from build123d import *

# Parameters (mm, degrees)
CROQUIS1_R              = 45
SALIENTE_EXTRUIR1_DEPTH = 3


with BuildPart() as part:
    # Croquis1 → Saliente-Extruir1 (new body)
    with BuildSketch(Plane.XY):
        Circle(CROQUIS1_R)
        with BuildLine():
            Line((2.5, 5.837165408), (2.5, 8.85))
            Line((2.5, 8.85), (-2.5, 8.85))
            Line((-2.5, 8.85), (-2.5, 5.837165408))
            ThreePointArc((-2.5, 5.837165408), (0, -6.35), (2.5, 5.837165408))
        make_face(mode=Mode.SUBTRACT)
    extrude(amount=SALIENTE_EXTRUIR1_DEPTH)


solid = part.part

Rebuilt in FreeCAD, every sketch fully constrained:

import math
import FreeCAD as App
import Part
import Sketcher

V = App.Vector
Q = App.Units.Quantity

doc = App.newDocument("Part")
body = doc.addObject("PartDesign::Body", "Body")

# Sketch on XY plane
sketch1 = doc.addObject("Sketcher::SketchObject", "Sketch")
body.addObject(sketch1)
sketch1.AttachmentSupport = (doc.XY_Plane, [""])
sketch1.MapMode = "FlatFace"
sketch1.addGeometry([
    Part.Circle(V(0, 0, 0), V(0, 0, 1), 45),  # 0
    Part.LineSegment(V(2.5, 8.85, 0), V(2.5, 5.837165, 0)),  # 1
    Part.ArcOfCircle(Part.Circle(V(0, 0, 0), V(0, 0, 1), 6.35), math.radians(113.18497), math.radians(426.81503)),  # 2
    Part.LineSegment(V(-2.5, 5.837165, 0), V(-2.5, 8.85, 0)),  # 3
    Part.LineSegment(V(-2.5, 8.85, 0), V(2.5, 8.85, 0)),  # 4
], False)
sketch1.addConstraint([
    Sketcher.Constraint("Coincident", 1, 2, 2, 2),
    Sketcher.Constraint("Coincident", 2, 1, 3, 1),
    Sketcher.Constraint("Coincident", 3, 2, 4, 1),
    Sketcher.Constraint("Coincident", 4, 2, 1, 1),
    Sketcher.Constraint("Vertical", 1),
    Sketcher.Constraint("Vertical", 3),
    Sketcher.Constraint("Horizontal", 4),
    Sketcher.Constraint("Coincident", 0, 3, -1, 1),
    Sketcher.Constraint("Coincident", 2, 3, -1, 1),
    Sketcher.Constraint("Horizontal", 1, 2, 2, 1),
    Sketcher.Constraint("Diameter", 0, Q("90 mm")),
    Sketcher.Constraint("DistanceX", 4, 1, 4, 2, Q("5 mm")),
    Sketcher.Constraint("Radius", 2, Q("6.35 mm")),
    Sketcher.Constraint("DistanceY", -1, 1, 3, 2, Q("8.85 mm")),
])
pad1 = doc.addObject("PartDesign::Pad", "Pad")
body.addObject(pad1)
pad1.Profile = sketch1
pad1.Length = 3

doc.recompute()
